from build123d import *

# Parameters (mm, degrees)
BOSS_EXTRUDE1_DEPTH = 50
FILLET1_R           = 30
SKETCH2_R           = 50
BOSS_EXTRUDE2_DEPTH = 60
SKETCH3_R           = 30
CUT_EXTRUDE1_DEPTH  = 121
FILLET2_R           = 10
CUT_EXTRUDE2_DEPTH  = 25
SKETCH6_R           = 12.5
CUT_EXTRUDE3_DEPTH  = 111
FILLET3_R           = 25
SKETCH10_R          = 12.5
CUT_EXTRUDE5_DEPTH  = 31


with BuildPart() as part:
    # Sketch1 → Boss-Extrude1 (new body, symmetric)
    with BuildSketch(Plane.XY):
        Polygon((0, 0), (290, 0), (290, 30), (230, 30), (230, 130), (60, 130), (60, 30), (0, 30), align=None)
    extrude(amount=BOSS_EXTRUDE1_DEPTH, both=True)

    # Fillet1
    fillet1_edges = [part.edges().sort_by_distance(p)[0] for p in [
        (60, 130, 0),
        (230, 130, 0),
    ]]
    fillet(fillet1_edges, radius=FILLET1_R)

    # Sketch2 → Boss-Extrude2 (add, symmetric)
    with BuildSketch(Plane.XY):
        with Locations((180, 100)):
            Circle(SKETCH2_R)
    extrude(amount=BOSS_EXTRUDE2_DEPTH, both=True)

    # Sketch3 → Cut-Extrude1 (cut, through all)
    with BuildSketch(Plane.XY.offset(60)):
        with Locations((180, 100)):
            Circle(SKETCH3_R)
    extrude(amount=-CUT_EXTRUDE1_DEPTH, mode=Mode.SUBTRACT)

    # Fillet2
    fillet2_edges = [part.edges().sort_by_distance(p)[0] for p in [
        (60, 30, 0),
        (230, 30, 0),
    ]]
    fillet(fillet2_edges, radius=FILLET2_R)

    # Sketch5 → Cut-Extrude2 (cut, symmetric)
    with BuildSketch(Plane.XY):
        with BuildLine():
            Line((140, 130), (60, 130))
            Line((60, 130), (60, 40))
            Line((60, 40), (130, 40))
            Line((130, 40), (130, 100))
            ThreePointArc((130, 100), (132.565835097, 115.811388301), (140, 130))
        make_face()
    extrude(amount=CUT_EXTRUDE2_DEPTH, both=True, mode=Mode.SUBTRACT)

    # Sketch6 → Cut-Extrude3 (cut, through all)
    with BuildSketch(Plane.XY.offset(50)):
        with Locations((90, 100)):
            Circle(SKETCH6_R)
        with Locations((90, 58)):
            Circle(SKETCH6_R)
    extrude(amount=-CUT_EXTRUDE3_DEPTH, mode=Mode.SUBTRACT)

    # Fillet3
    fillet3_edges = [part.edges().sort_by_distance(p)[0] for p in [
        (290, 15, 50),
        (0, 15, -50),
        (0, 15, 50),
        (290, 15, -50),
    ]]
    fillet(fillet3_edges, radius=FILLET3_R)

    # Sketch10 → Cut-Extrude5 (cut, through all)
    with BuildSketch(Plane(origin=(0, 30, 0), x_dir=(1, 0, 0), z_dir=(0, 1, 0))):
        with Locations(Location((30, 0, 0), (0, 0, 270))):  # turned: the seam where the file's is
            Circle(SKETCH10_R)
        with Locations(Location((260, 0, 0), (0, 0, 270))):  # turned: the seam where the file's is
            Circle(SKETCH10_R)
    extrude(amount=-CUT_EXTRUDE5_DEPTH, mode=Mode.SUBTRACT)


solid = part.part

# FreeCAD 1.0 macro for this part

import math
import FreeCAD as App
import Part
import Sketcher

V = App.Vector


def edges_at(feature, points):
    """Names of the edges that pass closest to the given points."""
    edges = feature.Shape.Edges
    near = lambda p: min(range(len(edges)), key=lambda i: edges[i].distToShape(Part.Vertex(*p))[0])
    return sorted({f"Edge{near(p) + 1}" for p in points})


def add_polygon(sketch, points):
    """Adds a closed chain of lines whose ends are joined by coincident constraints."""
    first, n = sketch.GeometryCount, len(points)
    for a, b in zip(points, points[1:] + points[:1]):
        sketch.addGeometry(Part.LineSegment(App.Vector(*a, 0), App.Vector(*b, 0)), False)
    for i in range(n):
        sketch.addConstraint(Sketcher.Constraint("Coincident", first + i, 2, first + (i + 1) % n, 1))

doc = App.newDocument("Part")
body = doc.addObject("PartDesign::Body", "Body")

sketch1 = doc.addObject("Sketcher::SketchObject", "Sketch")
body.addObject(sketch1)
sketch1.AttachmentSupport = (doc.XY_Plane, [""])
sketch1.MapMode = "FlatFace"
add_polygon(sketch1, [(0, 0), (290, 0), (290, 30), (230, 30), (230, 130), (60, 130), (60, 30), (0, 30)])
sketch1.addConstraint([
    Sketcher.Constraint("Horizontal", 0),
    Sketcher.Constraint("Vertical", 1),
    Sketcher.Constraint("Horizontal", 2),
    Sketcher.Constraint("Vertical", 3),
    Sketcher.Constraint("Horizontal", 4),
    Sketcher.Constraint("Vertical", 5),
    Sketcher.Constraint("Horizontal", 6),
    Sketcher.Constraint("Vertical", 7),
    Sketcher.Constraint("Coincident", 7, 2, -1, 1),
    Sketcher.Constraint("Horizontal", 2, 2, 5, 2),
    Sketcher.Constraint("Equal", 2, 6),
    Sketcher.Constraint("DistanceX", 0, 1, 0, 2, 290.0),
    Sketcher.Constraint("DistanceX", 2, 2, 2, 1, 60.0),
    Sketcher.Constraint("DistanceY", 1, 1, 1, 2, 30.0),
    Sketcher.Constraint("DistanceY", 3, 1, 3, 2, 100.0),
])
pad1 = doc.addObject("PartDesign::Pad", "Pad")
body.addObject(pad1)
pad1.Profile = sketch1
pad1.Length = 100
pad1.Midplane = True
doc.recompute()

fillet = doc.addObject("PartDesign::Fillet", "Fillet")
body.addObject(fillet)
fillet.Base = (pad1, edges_at(pad1, [(60, 130, 0), (230, 130, 0)]))
fillet.Radius = 30

sketch2 = doc.addObject("Sketcher::SketchObject", "Sketch001")
body.addObject(sketch2)
sketch2.AttachmentSupport = (doc.XY_Plane, [""])
sketch2.MapMode = "FlatFace"
sketch2.addGeometry(Part.Circle(V(180, 100, 0), V(0, 0, 1), 50), False)
sketch2.addConstraint([
    Sketcher.Constraint("Diameter", 0, 100.0),
    Sketcher.Constraint("DistanceX", -1, 1, 0, 3, 180.0),
    Sketcher.Constraint("DistanceY", -1, 1, 0, 3, 100.0),
])
pad2 = doc.addObject("PartDesign::Pad", "Pad001")
body.addObject(pad2)
pad2.Profile = sketch2
pad2.Length = 120
pad2.Midplane = True

sketch3 = doc.addObject("Sketcher::SketchObject", "Sketch002")
body.addObject(sketch3)
sketch3.AttachmentSupport = (doc.XY_Plane, [""])
sketch3.MapMode = "FlatFace"
sketch3.AttachmentOffset = App.Placement(V(0, 0, 60), App.Rotation())
sketch3.addGeometry(Part.Circle(V(180, 100, 0), V(0, 0, 1), 30), False)
sketch3.addConstraint([
    Sketcher.Constraint("Diameter", 0, 60.0),
    Sketcher.Constraint("DistanceX", -1, 1, 0, 3, 180.0),
    Sketcher.Constraint("DistanceY", -1, 1, 0, 3, 100.0),
])
pocket1 = doc.addObject("PartDesign::Pocket", "Pocket")
body.addObject(pocket1)
pocket1.Profile = sketch3
pocket1.Type = "ThroughAll"
doc.recompute()

fillet2 = doc.addObject("PartDesign::Fillet", "Fillet001")
body.addObject(fillet2)
fillet2.Base = (pocket1, edges_at(pocket1, [(60, 30, 0), (230, 30, 0)]))
fillet2.Radius = 10

sketch4 = doc.addObject("Sketcher::SketchObject", "Sketch003")
body.addObject(sketch4)
sketch4.AttachmentSupport = (doc.XY_Plane, [""])
sketch4.MapMode = "FlatFace"
sketch4.addGeometry([
    Part.LineSegment(V(140, 130, 0), V(60, 130, 0)),
    Part.LineSegment(V(60, 130, 0), V(60, 40, 0)),
    Part.LineSegment(V(60, 40, 0), V(130, 40, 0)),
    Part.LineSegment(V(130, 40, 0), V(130, 100, 0)),
    Part.ArcOfCircle(Part.Circle(V(180, 100, 0), V(0, 0, 1), 50), math.radians(143), math.radians(180)),
], False)
sketch4.addConstraint([
    Sketcher.Constraint("Coincident", 0, 2, 1, 1),
    Sketcher.Constraint("Coincident", 1, 2, 2, 1),
    Sketcher.Constraint("Coincident", 2, 2, 3, 1),
    Sketcher.Constraint("Tangent", 3, 2, 4, 2),
    Sketcher.Constraint("Coincident", 4, 1, 0, 1),
    Sketcher.Constraint("Horizontal", 0),
    Sketcher.Constraint("Vertical", 1),
    Sketcher.Constraint("Horizontal", 2),
    Sketcher.Constraint("Vertical", 3),
    Sketcher.Constraint("Radius", 4, 50.0),
    Sketcher.Constraint("DistanceX", 0, 2, 0, 1, 80.0),
    Sketcher.Constraint("DistanceX", 2, 1, 2, 2, 70.0),
    Sketcher.Constraint("DistanceY", 1, 2, 1, 1, 90.0),
    Sketcher.Constraint("DistanceX", -1, 1, 4, 3, 180.0),
    Sketcher.Constraint("DistanceY", -1, 1, 4, 3, 100.0),
])
pocket2 = doc.addObject("PartDesign::Pocket", "Pocket001")
body.addObject(pocket2)
pocket2.Profile = sketch4
pocket2.Length = 50
pocket2.Midplane = True

sketch5 = doc.addObject("Sketcher::SketchObject", "Sketch004")
body.addObject(sketch5)
sketch5.AttachmentSupport = (doc.XY_Plane, [""])
sketch5.MapMode = "FlatFace"
sketch5.AttachmentOffset = App.Placement(V(0, 0, 50), App.Rotation())
sketch5.addGeometry([
    Part.Circle(V(90, 100, 0), V(0, 0, 1), 12),
    Part.Circle(V(90, 58, 0), V(0, 0, 1), 12),
], False)
sketch5.addConstraint([
    Sketcher.Constraint("Equal", 0, 1),
    Sketcher.Constraint("Vertical", 0, 3, 1, 3),
    Sketcher.Constraint("Diameter", 0, 25.0),
    Sketcher.Constraint("DistanceX", -1, 1, 0, 3, 90.0),
    Sketcher.Constraint("DistanceY", -1, 1, 0, 3, 100.0),
    Sketcher.Constraint("DistanceY", -1, 1, 1, 3, 58.0),
])
pocket3 = doc.addObject("PartDesign::Pocket", "Pocket002")
body.addObject(pocket3)
pocket3.Profile = sketch5
pocket3.Type = "ThroughAll"
doc.recompute()

fillet3 = doc.addObject("PartDesign::Fillet", "Fillet002")
body.addObject(fillet3)
fillet3.Base = (pocket3, edges_at(pocket3, [
    (290, 15, 50),
    (0, 15, -50),
    (0, 15, 50),
    (290, 15, -50),
]))
fillet3.Radius = 25

sketch6 = doc.addObject("Sketcher::SketchObject", "Sketch005")
body.addObject(sketch6)
sketch6.AttachmentSupport = (doc.XZ_Plane, [""])
sketch6.MapMode = "FlatFace"
sketch6.AttachmentOffset = App.Placement(V(0, 0, -30), App.Rotation())
sketch6.addGeometry([
    Part.Circle(V(30, 0, 0), V(0, 0, 1), 12),
    Part.Circle(V(260, 0, 0), V(0, 0, 1), 12),
], False)
sketch6.addConstraint([
    Sketcher.Constraint("Equal", 0, 1),
    Sketcher.Constraint("PointOnObject", 0, 3, -1),
    Sketcher.Constraint("PointOnObject", 1, 3, -1),
    Sketcher.Constraint("Diameter", 0, 25.0),
    Sketcher.Constraint("DistanceX", -1, 1, 0, 3, 30.0),
    Sketcher.Constraint("DistanceX", -1, 1, 1, 3, 260.0),
])
pocket4 = doc.addObject("PartDesign::Pocket", "Pocket003")
body.addObject(pocket4)
pocket4.Profile = sketch6
pocket4.Type = "ThroughAll"
pocket4.Reversed = True

doc.recompute()
